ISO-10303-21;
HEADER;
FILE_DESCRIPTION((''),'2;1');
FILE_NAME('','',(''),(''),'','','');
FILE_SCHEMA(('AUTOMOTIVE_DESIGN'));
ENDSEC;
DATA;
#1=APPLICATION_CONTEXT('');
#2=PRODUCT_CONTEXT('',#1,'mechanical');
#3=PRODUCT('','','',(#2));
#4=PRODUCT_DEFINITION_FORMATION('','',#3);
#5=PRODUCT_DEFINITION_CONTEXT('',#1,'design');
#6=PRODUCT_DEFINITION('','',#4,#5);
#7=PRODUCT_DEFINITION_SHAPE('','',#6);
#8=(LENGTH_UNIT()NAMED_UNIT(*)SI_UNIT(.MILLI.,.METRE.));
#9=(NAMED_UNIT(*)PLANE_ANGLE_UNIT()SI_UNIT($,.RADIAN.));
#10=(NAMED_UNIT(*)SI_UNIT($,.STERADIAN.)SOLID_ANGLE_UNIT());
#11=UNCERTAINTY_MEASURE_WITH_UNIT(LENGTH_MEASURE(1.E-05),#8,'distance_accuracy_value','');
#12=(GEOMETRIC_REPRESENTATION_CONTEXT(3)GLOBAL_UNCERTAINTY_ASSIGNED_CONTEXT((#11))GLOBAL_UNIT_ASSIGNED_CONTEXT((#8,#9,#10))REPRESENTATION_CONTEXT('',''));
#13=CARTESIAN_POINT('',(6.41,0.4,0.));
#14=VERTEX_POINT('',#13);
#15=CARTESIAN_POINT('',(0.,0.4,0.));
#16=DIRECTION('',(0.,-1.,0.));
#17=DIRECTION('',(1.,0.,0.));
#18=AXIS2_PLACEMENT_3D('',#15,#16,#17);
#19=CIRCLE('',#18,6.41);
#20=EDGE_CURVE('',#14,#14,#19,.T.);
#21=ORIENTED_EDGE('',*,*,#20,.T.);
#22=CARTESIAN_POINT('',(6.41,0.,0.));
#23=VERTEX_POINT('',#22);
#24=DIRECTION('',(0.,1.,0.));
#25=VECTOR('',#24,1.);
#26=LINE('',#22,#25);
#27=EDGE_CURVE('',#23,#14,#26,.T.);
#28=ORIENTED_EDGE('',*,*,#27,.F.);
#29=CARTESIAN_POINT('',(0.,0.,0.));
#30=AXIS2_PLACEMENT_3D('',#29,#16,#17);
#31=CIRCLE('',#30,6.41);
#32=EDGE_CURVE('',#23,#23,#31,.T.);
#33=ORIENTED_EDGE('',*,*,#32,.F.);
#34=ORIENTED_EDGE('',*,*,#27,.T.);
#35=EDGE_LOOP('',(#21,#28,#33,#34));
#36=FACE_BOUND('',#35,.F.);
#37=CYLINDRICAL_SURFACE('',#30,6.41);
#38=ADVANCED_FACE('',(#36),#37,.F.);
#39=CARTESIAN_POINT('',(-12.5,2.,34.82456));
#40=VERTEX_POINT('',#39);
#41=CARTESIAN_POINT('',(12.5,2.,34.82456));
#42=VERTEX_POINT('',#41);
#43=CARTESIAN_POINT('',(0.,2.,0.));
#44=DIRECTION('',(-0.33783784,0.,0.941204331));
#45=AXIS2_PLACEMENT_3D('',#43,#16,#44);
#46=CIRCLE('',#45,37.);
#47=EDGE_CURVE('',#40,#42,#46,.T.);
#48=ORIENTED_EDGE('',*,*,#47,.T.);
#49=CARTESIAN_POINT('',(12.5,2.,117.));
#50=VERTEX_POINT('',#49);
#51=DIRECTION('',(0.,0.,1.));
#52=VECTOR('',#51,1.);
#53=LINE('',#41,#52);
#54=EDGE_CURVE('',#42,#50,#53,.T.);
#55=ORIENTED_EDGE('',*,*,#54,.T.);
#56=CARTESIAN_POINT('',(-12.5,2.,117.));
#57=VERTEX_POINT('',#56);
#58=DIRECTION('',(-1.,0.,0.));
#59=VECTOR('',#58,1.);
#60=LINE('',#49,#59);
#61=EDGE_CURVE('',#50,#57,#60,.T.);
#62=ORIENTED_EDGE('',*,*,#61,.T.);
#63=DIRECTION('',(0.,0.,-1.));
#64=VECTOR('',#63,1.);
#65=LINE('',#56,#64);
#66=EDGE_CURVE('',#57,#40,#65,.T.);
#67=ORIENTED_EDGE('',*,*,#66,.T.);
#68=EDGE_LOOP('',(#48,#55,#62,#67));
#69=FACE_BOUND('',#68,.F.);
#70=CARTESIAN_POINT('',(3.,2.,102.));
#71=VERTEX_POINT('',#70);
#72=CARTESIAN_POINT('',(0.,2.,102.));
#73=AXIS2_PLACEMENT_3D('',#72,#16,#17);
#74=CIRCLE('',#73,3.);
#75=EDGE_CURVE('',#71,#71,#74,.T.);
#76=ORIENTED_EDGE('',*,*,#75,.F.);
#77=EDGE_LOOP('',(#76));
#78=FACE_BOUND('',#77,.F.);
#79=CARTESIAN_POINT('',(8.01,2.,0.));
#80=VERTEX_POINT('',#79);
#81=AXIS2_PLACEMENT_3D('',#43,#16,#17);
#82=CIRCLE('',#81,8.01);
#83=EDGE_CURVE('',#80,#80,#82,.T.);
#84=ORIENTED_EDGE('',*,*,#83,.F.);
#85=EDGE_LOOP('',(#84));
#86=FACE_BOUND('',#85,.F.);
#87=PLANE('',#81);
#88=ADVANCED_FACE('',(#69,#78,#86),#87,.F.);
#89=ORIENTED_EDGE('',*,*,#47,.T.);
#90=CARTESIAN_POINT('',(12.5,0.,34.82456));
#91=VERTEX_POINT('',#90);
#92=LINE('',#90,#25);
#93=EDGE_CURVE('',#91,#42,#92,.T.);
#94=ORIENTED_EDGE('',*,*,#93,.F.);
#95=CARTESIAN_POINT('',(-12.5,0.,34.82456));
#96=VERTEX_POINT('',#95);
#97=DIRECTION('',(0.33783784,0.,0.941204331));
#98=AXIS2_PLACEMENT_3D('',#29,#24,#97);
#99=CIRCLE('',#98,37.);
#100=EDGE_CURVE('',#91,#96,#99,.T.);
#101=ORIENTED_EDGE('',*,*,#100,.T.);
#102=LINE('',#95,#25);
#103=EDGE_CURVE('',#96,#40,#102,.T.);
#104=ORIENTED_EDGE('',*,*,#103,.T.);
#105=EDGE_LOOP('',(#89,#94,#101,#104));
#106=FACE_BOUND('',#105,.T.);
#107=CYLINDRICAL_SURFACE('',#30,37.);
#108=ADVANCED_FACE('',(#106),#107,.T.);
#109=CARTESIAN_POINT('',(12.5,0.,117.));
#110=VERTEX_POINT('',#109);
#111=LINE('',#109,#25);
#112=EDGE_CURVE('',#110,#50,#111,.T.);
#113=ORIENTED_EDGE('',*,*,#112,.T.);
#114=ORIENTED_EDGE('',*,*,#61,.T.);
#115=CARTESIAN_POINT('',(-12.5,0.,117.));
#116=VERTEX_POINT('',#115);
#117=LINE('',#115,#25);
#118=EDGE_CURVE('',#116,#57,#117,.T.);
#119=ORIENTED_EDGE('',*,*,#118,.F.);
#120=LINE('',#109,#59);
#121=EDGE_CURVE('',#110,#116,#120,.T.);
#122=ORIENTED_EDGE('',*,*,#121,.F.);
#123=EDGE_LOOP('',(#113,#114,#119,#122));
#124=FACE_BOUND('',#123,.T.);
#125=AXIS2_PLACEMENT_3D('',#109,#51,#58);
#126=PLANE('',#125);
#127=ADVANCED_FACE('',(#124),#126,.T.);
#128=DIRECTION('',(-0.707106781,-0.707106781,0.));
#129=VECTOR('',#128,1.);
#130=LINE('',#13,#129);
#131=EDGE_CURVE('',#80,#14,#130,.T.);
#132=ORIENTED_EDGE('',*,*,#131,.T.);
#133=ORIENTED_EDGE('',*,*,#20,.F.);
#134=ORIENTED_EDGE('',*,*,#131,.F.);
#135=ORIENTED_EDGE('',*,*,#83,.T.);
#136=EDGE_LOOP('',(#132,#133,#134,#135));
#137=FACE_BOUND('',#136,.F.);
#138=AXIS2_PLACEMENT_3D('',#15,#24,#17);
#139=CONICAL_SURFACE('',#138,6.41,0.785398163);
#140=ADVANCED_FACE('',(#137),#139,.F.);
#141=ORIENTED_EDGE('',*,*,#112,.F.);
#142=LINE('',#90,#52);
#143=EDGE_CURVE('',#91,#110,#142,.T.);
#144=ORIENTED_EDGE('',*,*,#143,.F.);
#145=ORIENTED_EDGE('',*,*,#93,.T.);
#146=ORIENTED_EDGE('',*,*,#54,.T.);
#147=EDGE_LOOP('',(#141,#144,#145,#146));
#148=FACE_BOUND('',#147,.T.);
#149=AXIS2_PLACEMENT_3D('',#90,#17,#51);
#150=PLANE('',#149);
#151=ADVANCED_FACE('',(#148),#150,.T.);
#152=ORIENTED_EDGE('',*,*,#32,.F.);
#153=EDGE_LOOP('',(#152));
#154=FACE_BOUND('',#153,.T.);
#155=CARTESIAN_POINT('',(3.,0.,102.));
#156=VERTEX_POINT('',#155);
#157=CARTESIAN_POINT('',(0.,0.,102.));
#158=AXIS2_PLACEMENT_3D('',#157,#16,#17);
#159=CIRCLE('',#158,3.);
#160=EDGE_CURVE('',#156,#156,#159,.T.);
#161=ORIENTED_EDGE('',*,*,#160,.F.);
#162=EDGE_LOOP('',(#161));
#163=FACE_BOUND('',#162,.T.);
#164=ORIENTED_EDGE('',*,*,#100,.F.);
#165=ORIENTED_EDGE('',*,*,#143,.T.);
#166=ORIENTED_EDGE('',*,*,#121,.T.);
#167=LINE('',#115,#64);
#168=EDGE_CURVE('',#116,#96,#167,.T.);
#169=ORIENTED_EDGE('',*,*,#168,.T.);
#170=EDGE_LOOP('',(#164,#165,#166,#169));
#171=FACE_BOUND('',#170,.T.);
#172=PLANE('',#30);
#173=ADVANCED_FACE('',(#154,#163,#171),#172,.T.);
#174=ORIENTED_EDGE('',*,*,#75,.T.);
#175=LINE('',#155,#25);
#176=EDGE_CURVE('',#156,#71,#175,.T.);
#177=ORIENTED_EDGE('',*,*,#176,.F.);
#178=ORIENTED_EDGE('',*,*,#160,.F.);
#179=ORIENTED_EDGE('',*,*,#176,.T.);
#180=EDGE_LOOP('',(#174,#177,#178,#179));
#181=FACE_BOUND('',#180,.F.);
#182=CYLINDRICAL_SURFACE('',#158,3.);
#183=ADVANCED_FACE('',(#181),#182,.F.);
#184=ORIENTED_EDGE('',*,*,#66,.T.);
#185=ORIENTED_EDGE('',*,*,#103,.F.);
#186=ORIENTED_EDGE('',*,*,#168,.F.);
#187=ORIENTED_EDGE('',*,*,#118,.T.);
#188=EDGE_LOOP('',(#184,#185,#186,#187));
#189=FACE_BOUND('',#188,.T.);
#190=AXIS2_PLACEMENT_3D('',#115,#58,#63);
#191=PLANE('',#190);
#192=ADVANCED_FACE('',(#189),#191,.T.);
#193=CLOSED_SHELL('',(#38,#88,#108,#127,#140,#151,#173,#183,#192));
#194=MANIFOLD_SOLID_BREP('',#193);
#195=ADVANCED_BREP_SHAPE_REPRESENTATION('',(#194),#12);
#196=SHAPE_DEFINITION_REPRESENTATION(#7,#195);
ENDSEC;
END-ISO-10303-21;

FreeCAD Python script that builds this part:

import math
import FreeCAD as App
import Part
import Sketcher
Q = App.Units.Quantity


def edges_at(feature, points):
    """Names of the edges that pass closest to the given points."""
    edges = feature.Shape.Edges
    near = lambda p: min(range(len(edges)), key=lambda i: edges[i].distToShape(Part.Vertex(*p))[0])
    return sorted({f"Edge{near(p) + 1}" for p in points})

doc = App.newDocument("Part")
params = doc.addObject("Spreadsheet::Sheet", "Params")
for row, (alias, value) in enumerate([
    ("sketch1_diameter", "74 mm"),
    ("sketch1_diameter2", "12.82 mm"),
    ("pad1_length", "2 mm"),
    ("sketch2_width", "25 mm"),
    ("pad2_length", "2 mm"),
    ("sketch3_diameter", "6 mm"),
    ("chamfer_size", "1.6 mm"),
    ("chamfer_size2", "1.6 mm"),
], start=1):
    params.set(f"A{row}", alias)
    params.set(f"B{row}", "=" + value)
    params.setAlias(f"B{row}", alias)

body = doc.addObject("PartDesign::Body", "Body")

sketch1 = body.newObject("Sketcher::SketchObject", "Sketch")
sketch1.AttachmentSupport = (doc.getObject("XZ_Plane"), [""])
sketch1.MapMode = "FlatFace"
sketch1.addGeometry(Part.Circle(App.Vector(0, 0, 0), App.Vector(0, 0, 1), 37), False)
sketch1.addGeometry(Part.Circle(App.Vector(0, 0, 0), App.Vector(0, 0, 1), 6), False)
sketch1.addConstraint(Sketcher.Constraint("Coincident", 0, 3, -1, 1))
sketch1.addConstraint(Sketcher.Constraint("Coincident", 1, 3, -1, 1))
sketch1.addConstraint(Sketcher.Constraint("Diameter", 0, Q("74 mm")))
sketch1.addConstraint(Sketcher.Constraint("Diameter", 1, Q("12.82 mm")))
sketch1.setExpression("Constraints[2]", "Params.sketch1_diameter")
sketch1.setExpression("Constraints[3]", "Params.sketch1_diameter2")
pad1 = body.newObject("PartDesign::Pad", "Pad")
pad1.Profile = sketch1
pad1.setExpression("Length", "Params.pad1_length")
pad1.Reversed = True

sketch2 = body.newObject("Sketcher::SketchObject", "Sketch001")
sketch2.AttachmentSupport = (doc.getObject("XZ_Plane"), [""])
sketch2.MapMode = "FlatFace"
sketch2.addGeometry(Part.LineSegment(App.Vector(12, 117, 0), App.Vector(-12, 117, 0)), False)
sketch2.addGeometry(Part.LineSegment(App.Vector(-12, 117, 0), App.Vector(-12, 35, 0)), False)
sketch2.addGeometry(Part.ArcOfCircle(Part.Circle(App.Vector(0, 0, 0), App.Vector(0, 0, 1), 37), math.radians(70), math.radians(110)), False)
sketch2.addGeometry(Part.LineSegment(App.Vector(12, 35, 0), App.Vector(12, 117, 0)), False)
sketch2.addConstraint(Sketcher.Constraint("Coincident", 0, 2, 1, 1))
sketch2.addConstraint(Sketcher.Constraint("Coincident", 1, 2, 2, 2))
sketch2.addConstraint(Sketcher.Constraint("Coincident", 2, 1, 3, 1))
sketch2.addConstraint(Sketcher.Constraint("Coincident", 3, 2, 0, 1))
sketch2.addConstraint(Sketcher.Constraint("Horizontal", 0))
sketch2.addConstraint(Sketcher.Constraint("Vertical", 1))
sketch2.addConstraint(Sketcher.Constraint("Vertical", 3))
sketch2.addConstraint(Sketcher.Constraint("Coincident", 2, 3, -1, 1))
sketch2.addConstraint(Sketcher.Constraint("Horizontal", 1, 2, 2, 1))
sketch2.addConstraint(Sketcher.Constraint("DistanceX", 0, 2, 0, 1, Q("25 mm")))
sketch2.addConstraint(Sketcher.Constraint("DistanceY", -1, 1, 0, 2, Q("117 mm")))
sketch2.addConstraint(Sketcher.Constraint("Radius", 2, Q("36.999995 mm")))
sketch2.setExpression("Constraints[9]", "Params.sketch2_width")
pad2 = body.newObject("PartDesign::Pad", "Pad001")
pad2.Profile = sketch2
pad2.setExpression("Length", "Params.pad2_length")
pad2.Reversed = True

sketch3 = body.newObject("Sketcher::SketchObject", "Sketch002")
sketch3.AttachmentSupport = (doc.getObject("XZ_Plane"), [""])
sketch3.MapMode = "FlatFace"
sketch3.addGeometry(Part.Circle(App.Vector(0, 102, 0), App.Vector(0, 0, 1), 3), False)
sketch3.addConstraint(Sketcher.Constraint("PointOnObject", 0, 3, -2))
sketch3.addConstraint(Sketcher.Constraint("Diameter", 0, Q("6 mm")))
sketch3.addConstraint(Sketcher.Constraint("DistanceY", -1, 1, 0, 3, Q("102 mm")))
sketch3.setExpression("Constraints[1]", "Params.sketch3_diameter")
pocket1 = body.newObject("PartDesign::Pocket", "Pocket")
pocket1.Profile = sketch3
pocket1.Type = "ThroughAll"
doc.recompute()

chamfer = body.newObject("PartDesign::Chamfer", "Chamfer")
chamfer.Base = (pocket1, edges_at(pocket1, [(-6.41, 2, 0)]))
chamfer.ChamferType = "Two distances"
chamfer.setExpression("Size", "Params.chamfer_size")
chamfer.setExpression("Size2", "Params.chamfer_size2")

doc.recompute()
